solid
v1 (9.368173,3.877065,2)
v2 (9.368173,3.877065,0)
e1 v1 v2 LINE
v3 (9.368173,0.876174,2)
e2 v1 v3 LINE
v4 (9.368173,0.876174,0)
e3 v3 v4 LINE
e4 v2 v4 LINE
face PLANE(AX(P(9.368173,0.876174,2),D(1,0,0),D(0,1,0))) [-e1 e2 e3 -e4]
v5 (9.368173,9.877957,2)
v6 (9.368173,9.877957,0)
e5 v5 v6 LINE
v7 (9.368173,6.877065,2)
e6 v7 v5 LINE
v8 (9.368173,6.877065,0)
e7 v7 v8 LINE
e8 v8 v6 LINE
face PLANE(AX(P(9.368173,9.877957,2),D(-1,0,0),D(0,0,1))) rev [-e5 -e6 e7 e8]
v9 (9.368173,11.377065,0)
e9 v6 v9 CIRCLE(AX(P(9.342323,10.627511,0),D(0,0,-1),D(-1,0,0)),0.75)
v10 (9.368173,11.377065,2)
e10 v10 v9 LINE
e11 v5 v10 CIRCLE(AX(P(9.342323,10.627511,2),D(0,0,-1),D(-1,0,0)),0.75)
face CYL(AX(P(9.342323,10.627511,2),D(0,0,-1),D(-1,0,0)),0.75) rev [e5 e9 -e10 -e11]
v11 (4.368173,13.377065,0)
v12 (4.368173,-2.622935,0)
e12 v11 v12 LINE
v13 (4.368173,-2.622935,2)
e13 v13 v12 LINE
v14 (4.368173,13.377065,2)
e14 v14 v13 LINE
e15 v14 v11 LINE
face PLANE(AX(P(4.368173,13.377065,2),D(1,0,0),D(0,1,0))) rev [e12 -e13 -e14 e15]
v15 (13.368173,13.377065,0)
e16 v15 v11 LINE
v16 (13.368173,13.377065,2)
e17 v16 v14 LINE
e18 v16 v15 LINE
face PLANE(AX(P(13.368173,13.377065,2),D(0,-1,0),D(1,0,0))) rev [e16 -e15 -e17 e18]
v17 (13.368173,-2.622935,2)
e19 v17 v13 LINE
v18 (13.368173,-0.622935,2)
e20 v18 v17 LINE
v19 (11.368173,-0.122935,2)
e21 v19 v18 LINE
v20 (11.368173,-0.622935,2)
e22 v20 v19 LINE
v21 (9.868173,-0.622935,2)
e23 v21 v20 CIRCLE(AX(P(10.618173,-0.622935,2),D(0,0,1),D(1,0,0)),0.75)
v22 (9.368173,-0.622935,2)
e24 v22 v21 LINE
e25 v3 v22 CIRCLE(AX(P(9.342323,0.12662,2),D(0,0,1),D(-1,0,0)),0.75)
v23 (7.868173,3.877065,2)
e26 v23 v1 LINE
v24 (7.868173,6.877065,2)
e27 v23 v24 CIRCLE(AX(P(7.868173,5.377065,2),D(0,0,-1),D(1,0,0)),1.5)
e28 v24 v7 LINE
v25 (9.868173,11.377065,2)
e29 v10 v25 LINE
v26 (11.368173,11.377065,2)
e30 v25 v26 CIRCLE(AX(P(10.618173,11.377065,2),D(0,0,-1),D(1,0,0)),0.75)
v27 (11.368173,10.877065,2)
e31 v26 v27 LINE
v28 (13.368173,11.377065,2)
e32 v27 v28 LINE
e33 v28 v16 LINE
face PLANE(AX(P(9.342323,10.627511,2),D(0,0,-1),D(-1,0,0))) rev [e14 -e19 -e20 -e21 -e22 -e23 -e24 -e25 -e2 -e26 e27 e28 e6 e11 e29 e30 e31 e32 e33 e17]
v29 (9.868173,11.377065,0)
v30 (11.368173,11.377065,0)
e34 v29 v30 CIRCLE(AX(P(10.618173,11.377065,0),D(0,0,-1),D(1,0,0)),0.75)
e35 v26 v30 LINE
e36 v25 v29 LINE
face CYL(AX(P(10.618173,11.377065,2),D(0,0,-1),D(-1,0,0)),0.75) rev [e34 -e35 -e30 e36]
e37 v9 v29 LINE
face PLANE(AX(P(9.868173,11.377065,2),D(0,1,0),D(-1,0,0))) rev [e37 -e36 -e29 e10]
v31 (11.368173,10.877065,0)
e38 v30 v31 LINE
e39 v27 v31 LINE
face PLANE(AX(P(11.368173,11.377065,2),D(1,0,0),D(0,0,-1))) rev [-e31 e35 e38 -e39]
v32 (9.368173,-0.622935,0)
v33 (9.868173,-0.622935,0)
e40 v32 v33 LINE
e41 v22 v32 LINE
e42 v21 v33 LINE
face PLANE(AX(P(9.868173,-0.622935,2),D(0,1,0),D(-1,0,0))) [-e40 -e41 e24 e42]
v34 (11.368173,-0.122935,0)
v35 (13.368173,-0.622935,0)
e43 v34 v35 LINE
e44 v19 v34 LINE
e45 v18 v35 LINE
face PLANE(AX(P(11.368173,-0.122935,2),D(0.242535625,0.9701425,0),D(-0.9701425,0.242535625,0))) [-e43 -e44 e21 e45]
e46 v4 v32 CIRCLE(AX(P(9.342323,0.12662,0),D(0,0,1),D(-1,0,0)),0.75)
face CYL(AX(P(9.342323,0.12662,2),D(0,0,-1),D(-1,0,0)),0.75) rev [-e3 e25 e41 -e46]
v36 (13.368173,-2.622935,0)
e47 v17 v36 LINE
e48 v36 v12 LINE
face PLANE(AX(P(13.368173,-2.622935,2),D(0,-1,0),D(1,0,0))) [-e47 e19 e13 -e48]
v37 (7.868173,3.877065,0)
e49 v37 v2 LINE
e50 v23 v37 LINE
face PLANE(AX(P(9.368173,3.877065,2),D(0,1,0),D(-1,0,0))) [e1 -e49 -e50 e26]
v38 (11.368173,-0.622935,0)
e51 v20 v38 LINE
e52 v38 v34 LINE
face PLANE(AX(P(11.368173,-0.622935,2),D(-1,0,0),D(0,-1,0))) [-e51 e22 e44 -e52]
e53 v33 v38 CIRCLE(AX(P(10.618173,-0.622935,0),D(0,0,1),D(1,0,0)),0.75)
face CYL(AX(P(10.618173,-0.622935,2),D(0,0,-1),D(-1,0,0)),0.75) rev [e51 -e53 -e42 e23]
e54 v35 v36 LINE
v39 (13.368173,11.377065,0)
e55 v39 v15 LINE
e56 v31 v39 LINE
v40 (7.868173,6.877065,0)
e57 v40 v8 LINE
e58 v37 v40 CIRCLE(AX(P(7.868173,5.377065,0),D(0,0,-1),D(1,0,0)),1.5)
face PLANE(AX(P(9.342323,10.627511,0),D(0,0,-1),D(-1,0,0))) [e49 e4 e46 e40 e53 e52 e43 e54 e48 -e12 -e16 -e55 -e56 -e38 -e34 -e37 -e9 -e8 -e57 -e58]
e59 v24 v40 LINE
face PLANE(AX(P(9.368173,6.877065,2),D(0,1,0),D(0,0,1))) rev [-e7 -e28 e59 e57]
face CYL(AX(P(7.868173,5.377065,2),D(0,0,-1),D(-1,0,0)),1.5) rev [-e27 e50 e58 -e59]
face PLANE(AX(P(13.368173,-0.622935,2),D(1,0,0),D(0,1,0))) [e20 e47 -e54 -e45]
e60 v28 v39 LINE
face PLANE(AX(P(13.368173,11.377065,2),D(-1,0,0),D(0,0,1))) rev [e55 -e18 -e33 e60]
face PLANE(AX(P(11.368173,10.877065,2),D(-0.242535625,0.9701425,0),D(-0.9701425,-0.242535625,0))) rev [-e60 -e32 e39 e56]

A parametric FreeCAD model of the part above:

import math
import FreeCAD as App
import Part
import Sketcher
from FreeCAD import Vector
Q = App.Units.Quantity

doc = App.newDocument("Part")
body = doc.addObject("PartDesign::Body", "Body")

# Sketch on XY plane
sketch1 = body.newObject("Sketcher::SketchObject", "Sketch")
sketch1.AttachmentSupport = (doc.getObject("XY_Plane"), [""])
sketch1.MapMode = "FlatFace"
sketch1.addGeometry(Part.LineSegment(Vector(13.368173, 13.377065, 0), Vector(4.368173, 13.377065, 0)), False)
sketch1.addGeometry(Part.LineSegment(Vector(4.368173, 13.377065, 0), Vector(4.368173, 5.377065, 0)), False)
sketch1.addGeometry(Part.LineSegment(Vector(4.368173, 5.377065, 0), Vector(6.368173, 5.377065, 0)), False)
sketch1.addGeometry(Part.ArcOfCircle(Part.Circle(Vector(7.868173, 5.377065, 0), Vector(0, 0, 1), 1.5), math.radians(90), math.radians(180)), False)
sketch1.addGeometry(Part.LineSegment(Vector(7.868173, 6.877065, 0), Vector(9.368173, 6.877065, 0)), False)
sketch1.addGeometry(Part.LineSegment(Vector(9.368173, 6.877065, 0), Vector(9.368173, 9.877957, 0)), False)
sketch1.addGeometry(Part.ArcOfCircle(Part.Circle(Vector(9.342323, 10.627511, 0), Vector(0, 0, 1), 0.75), math.radians(88.024794), math.radians(271.975206)), False)
sketch1.addGeometry(Part.LineSegment(Vector(9.368173, 11.377065, 0), Vector(9.868173, 11.377065, 0)), False)
sketch1.addGeometry(Part.ArcOfCircle(Part.Circle(Vector(10.618173, 11.377065, 0), Vector(0, 0, 1), 0.75), math.radians(0), math.radians(180)), False)
sketch1.addGeometry(Part.LineSegment(Vector(11.368173, 11.377065, 0), Vector(11.368173, 10.877065, 0)), False)
sketch1.addGeometry(Part.LineSegment(Vector(11.368173, 10.877065, 0), Vector(13.368173, 11.377065, 0)), False)
sketch1.addGeometry(Part.LineSegment(Vector(13.368173, 11.377065, 0), Vector(13.368173, 13.377065, 0)), False)
sketch1.addConstraint(Sketcher.Constraint("Coincident", 0, 2, 1, 1))
sketch1.addConstraint(Sketcher.Constraint("Coincident", 1, 2, 2, 1))
sketch1.addConstraint(Sketcher.Constraint("Coincident", 2, 2, 3, 2))
sketch1.addConstraint(Sketcher.Constraint("Tangent", 3, 1, 4, 1))
sketch1.addConstraint(Sketcher.Constraint("Coincident", 4, 2, 5, 1))
sketch1.addConstraint(Sketcher.Constraint("Coincident", 5, 2, 6, 2))
sketch1.addConstraint(Sketcher.Constraint("Coincident", 6, 1, 7, 1))
sketch1.addConstraint(Sketcher.Constraint("Coincident", 7, 2, 8, 2))
sketch1.addConstraint(Sketcher.Constraint("Tangent", 8, 1, 9, 1))
sketch1.addConstraint(Sketcher.Constraint("Coincident", 9, 2, 10, 1))
sketch1.addConstraint(Sketcher.Constraint("Coincident", 10, 2, 11, 1))
sketch1.addConstraint(Sketcher.Constraint("Coincident", 11, 2, 0, 1))
sketch1.addConstraint(Sketcher.Constraint("Horizontal", 0))
sketch1.addConstraint(Sketcher.Constraint("Vertical", 1))
sketch1.addConstraint(Sketcher.Constraint("Horizontal", 2))
sketch1.addConstraint(Sketcher.Constraint("Horizontal", 4))
sketch1.addConstraint(Sketcher.Constraint("Vertical", 5))
sketch1.addConstraint(Sketcher.Constraint("Horizontal", 7))
sketch1.addConstraint(Sketcher.Constraint("Vertical", 9))
sketch1.addConstraint(Sketcher.Constraint("Vertical", 11))
sketch1.addConstraint(Sketcher.Constraint("Equal", 6, 8))
sketch1.addConstraint(Sketcher.Constraint("Horizontal", 3, 3, 1, 2))
sketch1.addConstraint(Sketcher.Constraint("Horizontal", 8, 3, 6, 1))
sketch1.addConstraint(Sketcher.Constraint("Horizontal", 8, 1, 10, 2))
sketch1.addConstraint(Sketcher.Constraint("Vertical", 5, 2, 6, 1))
sketch1.addConstraint(Sketcher.Constraint("Equal", 7, 9))
sketch1.addConstraint(Sketcher.Constraint("Equal", 2, 11))
sketch1.addConstraint(Sketcher.Constraint("Radius", 3, Q("1.5 mm")))
sketch1.addConstraint(Sketcher.Constraint("DistanceX", 0, 2, 0, 1, Q("9 mm")))
sketch1.addConstraint(Sketcher.Constraint("DistanceX", 2, 1, 2, 2, Q("2 mm")))
sketch1.addConstraint(Sketcher.Constraint("DistanceY", 1, 2, 1, 1, Q("8 mm")))
sketch1.addConstraint(Sketcher.Constraint("Radius", 6, Q("0.75 mm")))
sketch1.addConstraint(Sketcher.Constraint("DistanceX", 4, 1, 4, 2, Q("1.5 mm")))
sketch1.addConstraint(Sketcher.Constraint("DistanceX", 7, 1, 7, 2, Q("0.5 mm")))
sketch1.addConstraint(Sketcher.Constraint("DistanceY", 5, 1, 5, 2, Q("3.000891 mm")))
sketch1.addConstraint(Sketcher.Constraint("DistanceY", -1, 1, 6, 3, Q("10.627511 mm")))
sketch1.addConstraint(Sketcher.Constraint("DistanceX", -1, 1, 3, 3, Q("7.868173 mm")))
pad1 = body.newObject("PartDesign::Pad", "Pad")
pad1.Profile = sketch1
pad1.Length = 2
doc.recompute()

datumplane = body.newObject("PartDesign::Plane", "DatumPlane")
datumplane.AttachmentSupport = (doc.getObject("XZ_Plane"), [""])
datumplane.MapMode = "FlatFace"
datumplane.AttachmentOffset = App.Placement(Vector(0, 0, -5.377065), App.Rotation())
mirrored = body.newObject("PartDesign::Mirrored", "Mirrored")
mirrored.Originals = [pad1]
mirrored.MirrorPlane = (datumplane, [""])
body.Tip = mirrored

doc.recompute()
